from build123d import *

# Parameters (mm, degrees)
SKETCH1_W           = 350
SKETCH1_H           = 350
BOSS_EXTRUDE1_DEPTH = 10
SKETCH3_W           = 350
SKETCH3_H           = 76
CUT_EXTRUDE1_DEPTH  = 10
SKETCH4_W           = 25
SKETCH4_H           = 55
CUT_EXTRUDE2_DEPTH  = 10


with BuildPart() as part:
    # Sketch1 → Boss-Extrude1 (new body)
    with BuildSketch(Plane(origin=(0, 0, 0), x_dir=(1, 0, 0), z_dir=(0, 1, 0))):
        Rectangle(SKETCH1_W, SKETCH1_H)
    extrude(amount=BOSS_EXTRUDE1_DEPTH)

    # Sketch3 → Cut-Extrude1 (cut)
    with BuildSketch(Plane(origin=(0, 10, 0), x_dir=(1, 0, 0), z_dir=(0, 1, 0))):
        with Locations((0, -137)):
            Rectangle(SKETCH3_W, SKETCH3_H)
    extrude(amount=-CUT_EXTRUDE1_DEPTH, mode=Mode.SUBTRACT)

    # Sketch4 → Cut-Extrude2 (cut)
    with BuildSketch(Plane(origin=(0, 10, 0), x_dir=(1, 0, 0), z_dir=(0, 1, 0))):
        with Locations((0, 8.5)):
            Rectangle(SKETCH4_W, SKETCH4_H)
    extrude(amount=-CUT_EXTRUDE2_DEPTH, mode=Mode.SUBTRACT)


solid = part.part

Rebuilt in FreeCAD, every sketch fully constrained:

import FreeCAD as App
import Part
import Sketcher

V = App.Vector
Q = App.Units.Quantity


def add_polygon(sketch, points):
    """Adds a closed chain of lines whose ends are joined by coincident constraints."""
    first, n = sketch.GeometryCount, len(points)
    for a, b in zip(points, points[1:] + points[:1]):
        sketch.addGeometry(Part.LineSegment(App.Vector(*a, 0), App.Vector(*b, 0)), False)
    for i in range(n):
        sketch.addConstraint(Sketcher.Constraint("Coincident", first + i, 2, first + (i + 1) % n, 1))

doc = App.newDocument("Part")
body = doc.addObject("PartDesign::Body", "Body")

sketch1 = body.newObject("Sketcher::SketchObject", "Sketch")
sketch1.AttachmentSupport = (doc.getObject("XZ_Plane"), [""])
sketch1.MapMode = "FlatFace"
add_polygon(sketch1, [(-175, -175), (-175, 175), (175, 175), (175, -175)])
sketch1.addConstraint([
    Sketcher.Constraint("Vertical", 0),
    Sketcher.Constraint("Horizontal", 1),
    Sketcher.Constraint("Vertical", 2),
    Sketcher.Constraint("Horizontal", 3),
    Sketcher.Constraint("Symmetric", 0, 2, 2, 2, -1, 1),
    Sketcher.Constraint("Equal", 3, 0),
    Sketcher.Constraint("DistanceX", 1, 1, 1, 2, Q("350 mm")),
])
pad1 = body.newObject("PartDesign::Pad", "Pad")
pad1.Profile = sketch1
pad1.Length = 10
pad1.Reversed = True

sketch2 = body.newObject("Sketcher::SketchObject", "Sketch001")
sketch2.AttachmentSupport = (doc.getObject("XZ_Plane"), [""])
sketch2.MapMode = "FlatFace"
sketch2.AttachmentOffset = App.Placement(V(0, 0, -10), App.Rotation())
add_polygon(sketch2, [(-175, 99), (-175, 175), (175, 175), (175, 99)])
sketch2.addConstraint([
    Sketcher.Constraint("Vertical", 0),
    Sketcher.Constraint("Horizontal", 1),
    Sketcher.Constraint("Vertical", 2),
    Sketcher.Constraint("Horizontal", 3),
    Sketcher.Constraint("DistanceX", 1, 1, 1, 2, Q("350 mm")),
    Sketcher.Constraint("DistanceY", 0, 1, 0, 2, Q("76 mm")),
    Sketcher.Constraint("DistanceX", 0, 2, -1, 1, Q("175 mm")),
    Sketcher.Constraint("DistanceY", -1, 1, 0, 2, Q("175 mm")),
])
pocket1 = body.newObject("PartDesign::Pocket", "Pocket")
pocket1.Profile = sketch2
pocket1.Length = 10
pocket1.Reversed = True

sketch3 = body.newObject("Sketcher::SketchObject", "Sketch002")
sketch3.AttachmentSupport = (doc.getObject("XZ_Plane"), [""])
sketch3.MapMode = "FlatFace"
sketch3.AttachmentOffset = App.Placement(V(0, 0, -10), App.Rotation())
add_polygon(sketch3, [(-12, -36), (-12, 19), (12, 19), (12, -36)])
sketch3.addConstraint([
    Sketcher.Constraint("Vertical", 0),
    Sketcher.Constraint("Horizontal", 1),
    Sketcher.Constraint("Vertical", 2),
    Sketcher.Constraint("Horizontal", 3),
    Sketcher.Constraint("DistanceX", 1, 1, 1, 2, Q("25 mm")),
    Sketcher.Constraint("DistanceY", 0, 1, 0, 2, Q("55 mm")),
    Sketcher.Constraint("DistanceY", -1, 1, 0, 2, Q("19 mm")),
    Sketcher.Constraint("DistanceX", 0, 2, -1, 1, Q("12.5 mm")),
])
pocket2 = body.newObject("PartDesign::Pocket", "Pocket001")
pocket2.Profile = sketch3
pocket2.Length = 10
pocket2.Reversed = True

doc.recompute()
